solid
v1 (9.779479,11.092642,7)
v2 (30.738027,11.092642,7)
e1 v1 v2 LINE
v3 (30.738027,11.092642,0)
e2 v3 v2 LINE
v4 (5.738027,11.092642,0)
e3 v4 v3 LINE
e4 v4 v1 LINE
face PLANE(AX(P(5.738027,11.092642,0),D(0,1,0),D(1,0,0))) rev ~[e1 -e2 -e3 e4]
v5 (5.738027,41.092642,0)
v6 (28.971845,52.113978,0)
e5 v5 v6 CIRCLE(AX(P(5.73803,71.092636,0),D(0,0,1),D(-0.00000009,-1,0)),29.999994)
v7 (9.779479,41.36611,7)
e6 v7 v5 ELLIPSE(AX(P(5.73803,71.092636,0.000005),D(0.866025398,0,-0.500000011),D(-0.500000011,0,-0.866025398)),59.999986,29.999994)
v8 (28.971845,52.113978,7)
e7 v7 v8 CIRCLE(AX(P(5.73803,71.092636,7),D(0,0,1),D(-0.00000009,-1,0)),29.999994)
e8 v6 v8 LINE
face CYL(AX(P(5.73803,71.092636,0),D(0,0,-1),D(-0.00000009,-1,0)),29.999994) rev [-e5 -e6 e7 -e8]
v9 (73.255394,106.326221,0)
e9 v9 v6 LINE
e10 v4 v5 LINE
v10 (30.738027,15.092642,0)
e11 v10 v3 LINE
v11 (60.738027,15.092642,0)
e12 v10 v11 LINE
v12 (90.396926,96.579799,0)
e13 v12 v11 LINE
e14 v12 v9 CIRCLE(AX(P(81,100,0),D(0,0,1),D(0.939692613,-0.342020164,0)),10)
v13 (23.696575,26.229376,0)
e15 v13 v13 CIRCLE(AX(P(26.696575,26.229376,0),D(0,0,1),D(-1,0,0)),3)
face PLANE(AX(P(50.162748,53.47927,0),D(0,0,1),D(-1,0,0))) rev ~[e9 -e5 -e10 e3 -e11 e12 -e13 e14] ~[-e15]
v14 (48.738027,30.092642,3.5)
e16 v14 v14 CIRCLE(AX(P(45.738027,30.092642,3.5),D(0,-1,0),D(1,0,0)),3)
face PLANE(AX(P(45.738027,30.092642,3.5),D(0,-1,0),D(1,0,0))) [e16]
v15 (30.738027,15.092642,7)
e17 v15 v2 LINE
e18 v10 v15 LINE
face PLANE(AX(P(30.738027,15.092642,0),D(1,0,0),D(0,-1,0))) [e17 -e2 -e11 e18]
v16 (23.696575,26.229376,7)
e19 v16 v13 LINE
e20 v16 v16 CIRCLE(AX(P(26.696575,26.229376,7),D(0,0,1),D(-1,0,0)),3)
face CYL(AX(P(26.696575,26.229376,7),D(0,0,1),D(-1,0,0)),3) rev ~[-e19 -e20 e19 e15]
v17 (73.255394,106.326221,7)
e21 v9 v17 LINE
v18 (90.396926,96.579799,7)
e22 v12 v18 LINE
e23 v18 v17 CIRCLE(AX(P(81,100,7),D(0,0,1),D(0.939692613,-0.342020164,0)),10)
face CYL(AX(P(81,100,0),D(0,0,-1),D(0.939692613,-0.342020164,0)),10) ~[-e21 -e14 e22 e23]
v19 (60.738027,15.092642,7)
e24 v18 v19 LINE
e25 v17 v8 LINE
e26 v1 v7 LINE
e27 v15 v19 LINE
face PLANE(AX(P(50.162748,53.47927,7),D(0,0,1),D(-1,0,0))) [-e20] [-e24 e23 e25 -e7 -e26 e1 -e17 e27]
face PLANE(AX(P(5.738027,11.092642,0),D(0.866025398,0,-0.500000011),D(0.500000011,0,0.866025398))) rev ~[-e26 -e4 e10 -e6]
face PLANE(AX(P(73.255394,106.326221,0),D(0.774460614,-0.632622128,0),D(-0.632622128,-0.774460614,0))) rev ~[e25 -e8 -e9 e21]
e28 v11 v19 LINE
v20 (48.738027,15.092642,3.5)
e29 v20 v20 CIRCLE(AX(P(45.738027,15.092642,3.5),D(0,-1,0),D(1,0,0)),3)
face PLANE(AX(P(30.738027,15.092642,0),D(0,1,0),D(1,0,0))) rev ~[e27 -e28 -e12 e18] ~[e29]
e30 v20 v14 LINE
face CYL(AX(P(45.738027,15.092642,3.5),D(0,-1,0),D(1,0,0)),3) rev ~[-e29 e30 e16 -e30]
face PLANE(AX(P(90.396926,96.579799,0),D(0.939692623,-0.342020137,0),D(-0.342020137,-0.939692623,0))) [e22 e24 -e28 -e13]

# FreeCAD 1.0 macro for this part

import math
import FreeCAD as App
import Part
import Sketcher

V = App.Vector
Q = App.Units.Quantity

doc = App.newDocument("Part")
params = doc.addObject("Spreadsheet::Sheet", "Params")
for row, (alias, value) in enumerate([
    ("sketch1_radius", "10 mm"),
    ("sketch1_width", "25 mm"),
    ("sketch1_width2", "30 mm"),
    ("sketch1_height", "4 mm"),
    ("sketch1_length", "70 mm"),
    ("pad1_length", "7 mm"),
    ("sketch2_diameter", "6 mm"),
    ("pocket1_length", "15 mm"),
    ("sketch3_height", "7 mm"),
    ("sketch4_diameter", "6 mm"),
], start=1):
    params.set(f"A{row}", alias)
    params.set(f"B{row}", "=" + value)
    params.setAlias(f"B{row}", alias)

body = doc.addObject("PartDesign::Body", "Body")

# Sketch on XY plane
sketch1 = body.newObject("Sketcher::SketchObject", "Sketch")
sketch1.AttachmentSupport = (doc.getObject("XY_Plane"), [""])
sketch1.MapMode = "FlatFace"
sketch1.addGeometry([
    Part.LineSegment(V(75.261973, 88.907358, 0), V(50.261973, 88.907358, 0)),  # 0
    Part.LineSegment(V(50.261973, 88.907358, 0), V(50.261973, 84.907358, 0)),  # 1
    Part.LineSegment(V(50.261973, 84.907358, 0), V(20.261973, 84.907358, 0)),  # 2
    Part.LineSegment(V(20.261973, 84.907358, 0), V(-9.396926, 3.420201, 0)),  # 3
    Part.ArcOfCircle(Part.Circle(V(0, 0, 0), V(0, 0, 1), 10), math.radians(159.999999), math.radians(320.756159)),  # 4
    Part.LineSegment(V(7.744606, -6.326221, 0), V(52.028155, 47.886022, 0)),  # 5
    Part.ArcOfCircle(Part.Circle(V(75.26197, 28.907364, 0), V(0, 0, 1), 29.999994), math.radians(89.999995), math.radians(140.756161)),  # 6
    Part.LineSegment(V(75.261973, 58.907358, 0), V(75.261973, 88.907358, 0)),  # 7
], False)
sketch1.addConstraint([
    Sketcher.Constraint("Coincident", 0, 2, 1, 1),
    Sketcher.Constraint("Coincident", 1, 2, 2, 1),
    Sketcher.Constraint("Coincident", 2, 2, 3, 1),
    Sketcher.Constraint("Tangent", 3, 2, 4, 1),
    Sketcher.Constraint("Tangent", 4, 2, 5, 1),
    Sketcher.Constraint("Tangent", 5, 2, 6, 2),
    Sketcher.Constraint("Coincident", 6, 1, 7, 1),
    Sketcher.Constraint("Coincident", 7, 2, 0, 1),
    Sketcher.Constraint("Horizontal", 0),
    Sketcher.Constraint("Vertical", 1),
    Sketcher.Constraint("Horizontal", 2),
    Sketcher.Constraint("Vertical", 7),
    Sketcher.Constraint("Coincident", 4, 3, -1, 1),
    Sketcher.Constraint("Equal", 2, 7),
    Sketcher.Constraint("Radius", 4, 10.0),
    Sketcher.Constraint("DistanceX", 0, 2, 0, 1, 25.0),
    Sketcher.Constraint("DistanceX", 2, 2, 2, 1, 30.0),
    Sketcher.Constraint("DistanceY", 1, 2, 1, 1, 4.0),
    Sketcher.Constraint("Angle", 3, Q("-110 deg")),
    Sketcher.Constraint("Distance", 5, 70.0),
    Sketcher.Constraint("Radius", 6, 29.999994),
    Sketcher.Constraint("DistanceX", 3, 2, 2, 2, 29.658899),
])
sketch1.setExpression("Constraints[14]", "Params.sketch1_radius")
sketch1.setExpression("Constraints[15]", "Params.sketch1_width")
sketch1.setExpression("Constraints[16]", "Params.sketch1_width2")
sketch1.setExpression("Constraints[17]", "Params.sketch1_height")
sketch1.setExpression("Constraints[19]", "Params.sketch1_length")
pad1 = body.newObject("PartDesign::Pad", "Pad")
pad1.Profile = sketch1
pad1.setExpression("Length", "Params.pad1_length")

# Sketch on XZ plane
sketch2 = body.newObject("Sketcher::SketchObject", "Sketch001")
sketch2.AttachmentSupport = (doc.getObject("XZ_Plane"), [""])
sketch2.MapMode = "FlatFace"
sketch2.AttachmentOffset = App.Placement(V(0, 0, -84.907358), App.Rotation())
sketch2.addGeometry(Part.Circle(V(35.261973, 3.5, 0), V(0, 0, 1), 3), False)
sketch2.addConstraint([
    Sketcher.Constraint("Diameter", 0, 6.0),
    Sketcher.Constraint("DistanceY", -1, 1, 0, 3, 3.5),
    Sketcher.Constraint("DistanceX", -1, 1, 0, 3, 35.261973),
])
sketch2.setExpression("Constraints[0]", "Params.sketch2_diameter")
pocket1 = body.newObject("PartDesign::Pocket", "Pocket")
pocket1.Profile = sketch2
pocket1.setExpression("Length", "Params.pocket1_length")
pocket1.Reversed = True

# Sketch on XZ plane
sketch3 = body.newObject("Sketcher::SketchObject", "Sketch002")
sketch3.AttachmentSupport = (doc.getObject("XZ_Plane"), [""])
sketch3.MapMode = "FlatFace"
sketch3.AttachmentOffset = App.Placement(V(0, 0, -88.907358), App.Rotation())
sketch3.addGeometry([
    Part.LineSegment(V(75.261973, 7, 0), V(75.261973, 0, 0)),
    Part.LineSegment(V(75.261973, 0, 0), V(71.220521, 7, 0)),
    Part.LineSegment(V(71.220521, 7, 0), V(75.261973, 7, 0)),
], False)
sketch3.addConstraint([
    Sketcher.Constraint("Coincident", 0, 2, 1, 1),
    Sketcher.Constraint("Coincident", 1, 2, 2, 1),
    Sketcher.Constraint("Coincident", 2, 2, 0, 1),
    Sketcher.Constraint("Vertical", 0),
    Sketcher.Constraint("Horizontal", 2),
    Sketcher.Constraint("PointOnObject", 0, 2, -1),
    Sketcher.Constraint("DistanceY", 0, 2, 0, 1, 7.0),
    Sketcher.Constraint("Angle", 1, Q("120.000001 deg")),
    Sketcher.Constraint("DistanceX", -1, 1, 1, 2, 71.220521),
])
sketch3.setExpression("Constraints[6]", "Params.sketch3_height")
pocket2 = body.newObject("PartDesign::Pocket", "Pocket001")
pocket2.Profile = sketch3
pocket2.Type = "ThroughAll"
pocket2.Reversed = True

# Sketch on XY plane
sketch4 = body.newObject("Sketcher::SketchObject", "Sketch003")
sketch4.AttachmentSupport = (doc.getObject("XY_Plane"), [""])
sketch4.MapMode = "FlatFace"
sketch4.AttachmentOffset = App.Placement(V(0, 0, 7), App.Rotation())
sketch4.addGeometry(Part.Circle(V(54.303425, 73.770624, 0), V(0, 0, 1), 3), False)
sketch4.addConstraint([
    Sketcher.Constraint("Diameter", 0, 6.0),
    Sketcher.Constraint("DistanceX", -1, 1, 0, 3, 54.303425),
    Sketcher.Constraint("DistanceY", -1, 1, 0, 3, 73.770624),
])
sketch4.setExpression("Constraints[0]", "Params.sketch4_diameter")
pocket3 = body.newObject("PartDesign::Pocket", "Pocket002")
pocket3.Profile = sketch4
pocket3.Type = "ThroughAll"
body2 = doc.addObject("PartDesign::Body", "Body001")
doc.recompute()

body.Placement = App.Placement(V(-250, 0, 0), App.Rotation(V(0, 0, 1), 0))
boolean = body2.newObject("PartDesign::Boolean", "Boolean")
boolean.Type = "Fuse"
boolean.addObjects([body])
body3 = doc.addObject("PartDesign::Body", "Body002")
doc.recompute()

body2.Placement = App.Placement(V(-169, 100, 0), App.Rotation(V(0, 0, 1), 180))
boolean2 = body3.newObject("PartDesign::Boolean", "Boolean001")
boolean2.Type = "Fuse"
boolean2.addObjects([body2])

doc.recompute()
